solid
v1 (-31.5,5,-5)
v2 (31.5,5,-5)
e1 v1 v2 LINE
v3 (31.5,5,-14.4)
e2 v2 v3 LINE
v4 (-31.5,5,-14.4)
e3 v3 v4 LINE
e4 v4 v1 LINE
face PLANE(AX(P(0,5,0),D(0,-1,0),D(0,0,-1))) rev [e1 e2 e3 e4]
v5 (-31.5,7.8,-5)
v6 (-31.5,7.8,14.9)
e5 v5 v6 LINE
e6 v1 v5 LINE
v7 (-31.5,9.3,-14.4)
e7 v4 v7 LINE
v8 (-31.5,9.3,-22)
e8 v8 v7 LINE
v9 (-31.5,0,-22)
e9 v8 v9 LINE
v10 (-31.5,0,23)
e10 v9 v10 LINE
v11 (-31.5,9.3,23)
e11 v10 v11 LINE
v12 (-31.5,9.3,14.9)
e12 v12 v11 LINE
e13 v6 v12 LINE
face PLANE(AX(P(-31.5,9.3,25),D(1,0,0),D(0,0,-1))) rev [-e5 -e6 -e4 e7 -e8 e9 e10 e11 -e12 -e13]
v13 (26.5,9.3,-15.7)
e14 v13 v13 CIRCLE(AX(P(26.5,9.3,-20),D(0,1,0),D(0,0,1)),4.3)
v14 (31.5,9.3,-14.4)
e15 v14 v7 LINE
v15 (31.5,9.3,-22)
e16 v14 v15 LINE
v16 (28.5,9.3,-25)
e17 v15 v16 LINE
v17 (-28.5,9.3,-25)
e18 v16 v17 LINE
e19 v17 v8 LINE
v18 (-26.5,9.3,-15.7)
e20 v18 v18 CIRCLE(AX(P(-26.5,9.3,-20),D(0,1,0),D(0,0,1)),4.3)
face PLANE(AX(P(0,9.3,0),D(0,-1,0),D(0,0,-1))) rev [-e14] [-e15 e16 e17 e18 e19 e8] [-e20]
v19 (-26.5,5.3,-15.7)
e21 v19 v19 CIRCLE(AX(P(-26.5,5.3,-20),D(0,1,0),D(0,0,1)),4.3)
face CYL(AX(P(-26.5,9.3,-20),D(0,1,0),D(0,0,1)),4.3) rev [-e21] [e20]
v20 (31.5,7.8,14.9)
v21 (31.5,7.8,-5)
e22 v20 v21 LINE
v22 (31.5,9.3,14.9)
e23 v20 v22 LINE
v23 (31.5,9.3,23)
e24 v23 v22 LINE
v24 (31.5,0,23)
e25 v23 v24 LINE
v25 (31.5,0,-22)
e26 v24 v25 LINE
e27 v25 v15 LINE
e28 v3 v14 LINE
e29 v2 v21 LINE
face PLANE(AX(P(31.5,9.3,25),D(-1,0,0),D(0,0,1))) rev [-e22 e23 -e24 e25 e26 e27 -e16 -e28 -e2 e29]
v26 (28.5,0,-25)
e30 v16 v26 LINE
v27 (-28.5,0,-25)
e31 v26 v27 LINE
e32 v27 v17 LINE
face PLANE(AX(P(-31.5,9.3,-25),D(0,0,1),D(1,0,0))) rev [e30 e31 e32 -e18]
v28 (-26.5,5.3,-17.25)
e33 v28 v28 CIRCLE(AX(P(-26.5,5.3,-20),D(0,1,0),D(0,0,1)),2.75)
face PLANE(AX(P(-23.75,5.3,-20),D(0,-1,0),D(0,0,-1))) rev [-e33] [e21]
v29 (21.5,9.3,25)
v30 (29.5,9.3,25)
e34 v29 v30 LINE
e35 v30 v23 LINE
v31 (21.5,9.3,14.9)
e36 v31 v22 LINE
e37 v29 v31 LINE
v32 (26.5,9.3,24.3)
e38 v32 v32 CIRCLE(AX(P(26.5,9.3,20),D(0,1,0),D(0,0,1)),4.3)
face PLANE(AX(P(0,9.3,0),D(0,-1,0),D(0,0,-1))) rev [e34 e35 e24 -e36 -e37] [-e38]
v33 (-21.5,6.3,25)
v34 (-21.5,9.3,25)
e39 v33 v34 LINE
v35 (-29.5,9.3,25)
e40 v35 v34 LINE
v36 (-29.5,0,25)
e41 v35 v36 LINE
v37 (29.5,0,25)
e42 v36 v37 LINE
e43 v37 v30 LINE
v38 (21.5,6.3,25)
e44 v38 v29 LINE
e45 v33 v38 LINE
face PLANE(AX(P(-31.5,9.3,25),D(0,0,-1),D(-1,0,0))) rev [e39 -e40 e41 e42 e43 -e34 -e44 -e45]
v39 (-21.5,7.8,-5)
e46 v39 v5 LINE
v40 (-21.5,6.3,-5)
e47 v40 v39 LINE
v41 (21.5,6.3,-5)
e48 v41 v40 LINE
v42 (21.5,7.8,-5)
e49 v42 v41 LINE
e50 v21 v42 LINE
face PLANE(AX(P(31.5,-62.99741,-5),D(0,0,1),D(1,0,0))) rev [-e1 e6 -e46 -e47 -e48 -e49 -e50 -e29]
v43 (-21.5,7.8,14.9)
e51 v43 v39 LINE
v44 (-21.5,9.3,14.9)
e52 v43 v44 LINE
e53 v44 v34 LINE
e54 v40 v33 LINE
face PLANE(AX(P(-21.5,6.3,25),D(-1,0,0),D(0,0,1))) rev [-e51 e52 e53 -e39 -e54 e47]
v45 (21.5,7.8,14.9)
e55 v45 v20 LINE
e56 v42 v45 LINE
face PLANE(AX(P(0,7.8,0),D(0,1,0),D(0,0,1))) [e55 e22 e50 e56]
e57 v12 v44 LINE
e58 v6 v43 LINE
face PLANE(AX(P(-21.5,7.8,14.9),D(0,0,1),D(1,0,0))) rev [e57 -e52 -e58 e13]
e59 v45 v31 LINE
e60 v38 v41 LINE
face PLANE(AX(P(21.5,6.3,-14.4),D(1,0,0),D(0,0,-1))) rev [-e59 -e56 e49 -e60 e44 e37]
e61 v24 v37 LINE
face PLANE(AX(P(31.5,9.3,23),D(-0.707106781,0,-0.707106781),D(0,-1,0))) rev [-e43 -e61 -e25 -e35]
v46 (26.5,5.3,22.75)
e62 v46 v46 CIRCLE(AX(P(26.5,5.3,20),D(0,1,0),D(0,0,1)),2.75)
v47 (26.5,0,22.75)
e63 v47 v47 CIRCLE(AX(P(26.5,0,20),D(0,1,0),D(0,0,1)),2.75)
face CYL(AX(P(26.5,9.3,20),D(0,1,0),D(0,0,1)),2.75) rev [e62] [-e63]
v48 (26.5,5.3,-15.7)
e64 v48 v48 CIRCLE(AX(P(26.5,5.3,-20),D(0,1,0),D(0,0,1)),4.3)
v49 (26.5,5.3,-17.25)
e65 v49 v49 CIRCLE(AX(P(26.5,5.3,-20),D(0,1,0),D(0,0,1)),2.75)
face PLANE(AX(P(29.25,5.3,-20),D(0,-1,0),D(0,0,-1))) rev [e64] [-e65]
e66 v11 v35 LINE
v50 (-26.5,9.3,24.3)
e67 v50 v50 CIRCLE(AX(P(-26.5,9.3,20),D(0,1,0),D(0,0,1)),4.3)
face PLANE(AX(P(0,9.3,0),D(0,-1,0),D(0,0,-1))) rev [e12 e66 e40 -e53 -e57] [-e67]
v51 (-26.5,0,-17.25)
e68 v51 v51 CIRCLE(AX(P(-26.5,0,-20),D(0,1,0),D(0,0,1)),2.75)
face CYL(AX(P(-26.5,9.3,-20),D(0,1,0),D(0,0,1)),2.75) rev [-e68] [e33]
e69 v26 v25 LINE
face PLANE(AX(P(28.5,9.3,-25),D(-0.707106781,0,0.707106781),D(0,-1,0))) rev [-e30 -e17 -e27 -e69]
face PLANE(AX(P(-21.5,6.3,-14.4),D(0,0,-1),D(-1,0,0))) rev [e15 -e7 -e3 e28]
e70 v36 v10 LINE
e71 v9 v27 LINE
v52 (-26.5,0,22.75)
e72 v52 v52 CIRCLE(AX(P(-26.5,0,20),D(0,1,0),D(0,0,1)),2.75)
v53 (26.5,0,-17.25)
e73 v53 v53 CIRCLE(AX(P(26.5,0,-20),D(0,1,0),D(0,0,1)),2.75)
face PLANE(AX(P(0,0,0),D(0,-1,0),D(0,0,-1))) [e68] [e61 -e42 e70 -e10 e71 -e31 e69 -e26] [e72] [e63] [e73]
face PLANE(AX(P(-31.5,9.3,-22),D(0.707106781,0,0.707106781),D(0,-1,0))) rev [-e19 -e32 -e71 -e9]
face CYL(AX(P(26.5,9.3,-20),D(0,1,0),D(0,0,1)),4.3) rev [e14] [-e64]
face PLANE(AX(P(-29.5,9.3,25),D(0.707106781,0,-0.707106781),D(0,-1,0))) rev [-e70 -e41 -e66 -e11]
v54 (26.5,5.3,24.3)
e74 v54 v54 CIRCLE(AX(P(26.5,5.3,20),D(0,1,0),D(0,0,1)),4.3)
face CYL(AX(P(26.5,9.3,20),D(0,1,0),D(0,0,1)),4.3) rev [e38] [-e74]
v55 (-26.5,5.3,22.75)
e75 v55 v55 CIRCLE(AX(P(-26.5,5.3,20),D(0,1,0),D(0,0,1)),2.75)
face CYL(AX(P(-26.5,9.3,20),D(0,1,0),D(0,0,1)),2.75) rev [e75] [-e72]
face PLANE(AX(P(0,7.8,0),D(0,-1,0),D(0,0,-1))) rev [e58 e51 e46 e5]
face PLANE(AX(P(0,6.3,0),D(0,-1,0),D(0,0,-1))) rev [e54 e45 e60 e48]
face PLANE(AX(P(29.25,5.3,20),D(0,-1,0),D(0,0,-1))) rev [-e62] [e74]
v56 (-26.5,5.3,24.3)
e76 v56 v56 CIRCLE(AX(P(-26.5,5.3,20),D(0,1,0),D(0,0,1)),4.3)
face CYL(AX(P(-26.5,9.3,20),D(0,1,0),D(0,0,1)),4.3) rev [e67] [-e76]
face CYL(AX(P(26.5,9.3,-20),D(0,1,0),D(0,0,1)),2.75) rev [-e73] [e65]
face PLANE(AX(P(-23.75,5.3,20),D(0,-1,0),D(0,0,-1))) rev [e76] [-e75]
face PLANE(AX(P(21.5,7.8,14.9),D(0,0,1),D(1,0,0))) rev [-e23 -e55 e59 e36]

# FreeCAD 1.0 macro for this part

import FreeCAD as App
import Part
import Sketcher
from FreeCAD import Vector


def edges_at(feature, points):
    """Names of the edges that pass closest to the given points."""
    edges = feature.Shape.Edges
    near = lambda p: min(range(len(edges)), key=lambda i: edges[i].distToShape(Part.Vertex(*p))[0])
    return sorted({f"Edge{near(p) + 1}" for p in points})


def add_polygon(sketch, points):
    """Adds a closed chain of lines whose ends are joined by coincident constraints."""
    first, n = sketch.GeometryCount, len(points)
    for a, b in zip(points, points[1:] + points[:1]):
        sketch.addGeometry(Part.LineSegment(App.Vector(*a, 0), App.Vector(*b, 0)), False)
    for i in range(n):
        sketch.addConstraint(Sketcher.Constraint("Coincident", first + i, 2, first + (i + 1) % n, 1))

doc = App.newDocument("Part")
body = doc.addObject("PartDesign::Body", "Body")

# Sketch on XZ plane
sketch1 = body.newObject("Sketcher::SketchObject", "Sketch")
sketch1.AttachmentSupport = (doc.getObject("XZ_Plane"), [""])
sketch1.MapMode = "FlatFace"
add_polygon(sketch1, [(-31.5, -25), (-31.5, 25), (31.5, 25), (31.5, -25)])  # lines 0-3
sketch1.addConstraint([
    Sketcher.Constraint("Vertical", 0),
    Sketcher.Constraint("Horizontal", 1),
    Sketcher.Constraint("Vertical", 2),
    Sketcher.Constraint("Horizontal", 3),
    Sketcher.Constraint("Symmetric", 0, 2, 2, 2, -1, 1),
    Sketcher.Constraint("DistanceX", 1, 1, 1, 2, 63.0),
    Sketcher.Constraint("DistanceY", 0, 1, 0, 2, 50.0),
])
pad1 = body.newObject("PartDesign::Pad", "Pad")
pad1.Profile = sketch1
pad1.Length = 9.3
pad1.Reversed = True

# Sketch on XZ plane
sketch2 = body.newObject("Sketcher::SketchObject", "Sketch001")
sketch2.AttachmentSupport = (doc.getObject("XZ_Plane"), [""])
sketch2.MapMode = "FlatFace"
sketch2.AttachmentOffset = App.Placement(Vector(0, 0, -9.3), App.Rotation())
sketch2.addGeometry([
    Part.Circle(Vector(-26.5, 20, 0), Vector(0, 0, 1), 2.75),
    Part.Circle(Vector(26.5, 20, 0), Vector(0, 0, 1), 2.75),
    Part.Circle(Vector(26.5, -20, 0), Vector(0, 0, 1), 2.75),
    Part.Circle(Vector(-26.5, -20, 0), Vector(0, 0, 1), 2.75),
], False)
sketch2.addConstraint([
    Sketcher.Constraint("Equal", 0, 1),
    Sketcher.Constraint("Equal", 1, 2),
    Sketcher.Constraint("Equal", 2, 3),
    Sketcher.Constraint("Symmetric", 0, 3, 2, 3, -1, 1),
    Sketcher.Constraint("Symmetric", 1, 3, 3, 3, -1, 1),
    Sketcher.Constraint("Symmetric", 0, 3, 1, 3, -2),
    Sketcher.Constraint("Diameter", 0, 5.5),
    Sketcher.Constraint("DistanceY", -1, 1, 0, 3, 20.0),
    Sketcher.Constraint("DistanceX", 0, 3, 1, 3, 53.0),
])
doc.recompute()
hole = body.newObject("PartDesign::Hole", "Hole")
hole.Profile = sketch2
hole.ThreadType = "None"
hole.Diameter = 5.5
hole.DepthType = "ThroughAll"
hole.HoleCutType = "Counterbore"
hole.HoleCutDiameter = 8.6
hole.HoleCutDepth = 4
hole.Reversed = True
doc.recompute()

chamfer = body.newObject("PartDesign::Chamfer", "Chamfer")
chamfer.Base = (hole, edges_at(hole, [(-31.5, 4.65, -25), (31.5, 4.65, -25)]))
chamfer.Size = 3
doc.recompute()

chamfer2 = body.newObject("PartDesign::Chamfer", "Chamfer001")
chamfer2.Base = (chamfer, edges_at(chamfer, [(31.5, 4.65, 25), (-31.5, 4.65, 25)]))
chamfer2.Size = 2

# Sketch on XZ plane
sketch3 = body.newObject("Sketcher::SketchObject", "Sketch002")
sketch3.AttachmentSupport = (doc.getObject("XZ_Plane"), [""])
sketch3.MapMode = "FlatFace"
sketch3.AttachmentOffset = App.Placement(Vector(0, 0, -9.3), App.Rotation())
add_polygon(sketch3, [(-21.5, 25), (21.5, 25), (21.5, -14.4), (-21.5, -14.4)])  # lines 0-3
sketch3.addConstraint([
    Sketcher.Constraint("Horizontal", 0),
    Sketcher.Constraint("Vertical", 1),
    Sketcher.Constraint("Horizontal", 2),
    Sketcher.Constraint("Vertical", 3),
    Sketcher.Constraint("DistanceX", 0, 1, 0, 2, 43.0),
    Sketcher.Constraint("DistanceY", 1, 2, 1, 1, 39.4),
    Sketcher.Constraint("DistanceY", -1, 1, 0, 2, 25.0),
    Sketcher.Constraint("DistanceX", -1, 1, 0, 2, 21.5),
])
pocket1 = body.newObject("PartDesign::Pocket", "Pocket")
pocket1.Profile = sketch3
pocket1.Length = 3
pocket1.Reversed = True

# Sketch on XZ plane
sketch4 = body.newObject("Sketcher::SketchObject", "Sketch003")
sketch4.AttachmentSupport = (doc.getObject("XZ_Plane"), [""])
sketch4.MapMode = "FlatFace"
sketch4.AttachmentOffset = App.Placement(Vector(0, 0, -9.3), App.Rotation())
add_polygon(sketch4, [(31.5, -14.4), (-31.5, -14.4), (-31.5, -5), (31.5, -5)])  # lines 0-3
sketch4.addConstraint([
    Sketcher.Constraint("Horizontal", 0),
    Sketcher.Constraint("Vertical", 1),
    Sketcher.Constraint("Horizontal", 2),
    Sketcher.Constraint("Vertical", 3),
    Sketcher.Constraint("DistanceX", 0, 2, 0, 1, 63.0),
    Sketcher.Constraint("DistanceY", 1, 1, 1, 2, 9.4),
    Sketcher.Constraint("DistanceY", 1, 2, -1, 1, 5.0),
    Sketcher.Constraint("DistanceX", 0, 2, -1, 1, 31.5),
])
pocket2 = body.newObject("PartDesign::Pocket", "Pocket001")
pocket2.Profile = sketch4
pocket2.Length = 4.3
pocket2.Reversed = True

# Sketch on XZ plane
sketch5 = body.newObject("Sketcher::SketchObject", "Sketch004")
sketch5.AttachmentSupport = (doc.getObject("XZ_Plane"), [""])
sketch5.MapMode = "FlatFace"
sketch5.AttachmentOffset = App.Placement(Vector(0, 0, -9.3), App.Rotation())
add_polygon(sketch5, [(21.5, -5), (21.5, 14.9), (31.5, 14.9), (31.5, -5)])  # lines 0-3
add_polygon(sketch5, [(-31.5, -5), (-31.5, 14.9), (-21.5, 14.9), (-21.5, -5)])  # lines 4-7
sketch5.addConstraint([
    Sketcher.Constraint("Vertical", 0),
    Sketcher.Constraint("Horizontal", 1),
    Sketcher.Constraint("Vertical", 2),
    Sketcher.Constraint("Horizontal", 3),
    Sketcher.Constraint("Vertical", 4),
    Sketcher.Constraint("Horizontal", 5),
    Sketcher.Constraint("Vertical", 6),
    Sketcher.Constraint("Horizontal", 7),
    Sketcher.Constraint("Symmetric", 1, 2, 4, 2, -2),
    Sketcher.Constraint("Symmetric", 3, 2, 6, 2, -2),
    Sketcher.Constraint("DistanceX", 1, 1, 1, 2, 10.0),
    Sketcher.Constraint("DistanceY", 0, 1, 0, 2, 19.9),
    Sketcher.Constraint("DistanceY", 2, 2, -1, 1, 5.0),
    Sketcher.Constraint("DistanceX", 4, 2, 0, 2, 53.0),
])
pocket3 = body.newObject("PartDesign::Pocket", "Pocket002")
pocket3.Profile = sketch5
pocket3.Length = 1.5
pocket3.Reversed = True

doc.recompute()
